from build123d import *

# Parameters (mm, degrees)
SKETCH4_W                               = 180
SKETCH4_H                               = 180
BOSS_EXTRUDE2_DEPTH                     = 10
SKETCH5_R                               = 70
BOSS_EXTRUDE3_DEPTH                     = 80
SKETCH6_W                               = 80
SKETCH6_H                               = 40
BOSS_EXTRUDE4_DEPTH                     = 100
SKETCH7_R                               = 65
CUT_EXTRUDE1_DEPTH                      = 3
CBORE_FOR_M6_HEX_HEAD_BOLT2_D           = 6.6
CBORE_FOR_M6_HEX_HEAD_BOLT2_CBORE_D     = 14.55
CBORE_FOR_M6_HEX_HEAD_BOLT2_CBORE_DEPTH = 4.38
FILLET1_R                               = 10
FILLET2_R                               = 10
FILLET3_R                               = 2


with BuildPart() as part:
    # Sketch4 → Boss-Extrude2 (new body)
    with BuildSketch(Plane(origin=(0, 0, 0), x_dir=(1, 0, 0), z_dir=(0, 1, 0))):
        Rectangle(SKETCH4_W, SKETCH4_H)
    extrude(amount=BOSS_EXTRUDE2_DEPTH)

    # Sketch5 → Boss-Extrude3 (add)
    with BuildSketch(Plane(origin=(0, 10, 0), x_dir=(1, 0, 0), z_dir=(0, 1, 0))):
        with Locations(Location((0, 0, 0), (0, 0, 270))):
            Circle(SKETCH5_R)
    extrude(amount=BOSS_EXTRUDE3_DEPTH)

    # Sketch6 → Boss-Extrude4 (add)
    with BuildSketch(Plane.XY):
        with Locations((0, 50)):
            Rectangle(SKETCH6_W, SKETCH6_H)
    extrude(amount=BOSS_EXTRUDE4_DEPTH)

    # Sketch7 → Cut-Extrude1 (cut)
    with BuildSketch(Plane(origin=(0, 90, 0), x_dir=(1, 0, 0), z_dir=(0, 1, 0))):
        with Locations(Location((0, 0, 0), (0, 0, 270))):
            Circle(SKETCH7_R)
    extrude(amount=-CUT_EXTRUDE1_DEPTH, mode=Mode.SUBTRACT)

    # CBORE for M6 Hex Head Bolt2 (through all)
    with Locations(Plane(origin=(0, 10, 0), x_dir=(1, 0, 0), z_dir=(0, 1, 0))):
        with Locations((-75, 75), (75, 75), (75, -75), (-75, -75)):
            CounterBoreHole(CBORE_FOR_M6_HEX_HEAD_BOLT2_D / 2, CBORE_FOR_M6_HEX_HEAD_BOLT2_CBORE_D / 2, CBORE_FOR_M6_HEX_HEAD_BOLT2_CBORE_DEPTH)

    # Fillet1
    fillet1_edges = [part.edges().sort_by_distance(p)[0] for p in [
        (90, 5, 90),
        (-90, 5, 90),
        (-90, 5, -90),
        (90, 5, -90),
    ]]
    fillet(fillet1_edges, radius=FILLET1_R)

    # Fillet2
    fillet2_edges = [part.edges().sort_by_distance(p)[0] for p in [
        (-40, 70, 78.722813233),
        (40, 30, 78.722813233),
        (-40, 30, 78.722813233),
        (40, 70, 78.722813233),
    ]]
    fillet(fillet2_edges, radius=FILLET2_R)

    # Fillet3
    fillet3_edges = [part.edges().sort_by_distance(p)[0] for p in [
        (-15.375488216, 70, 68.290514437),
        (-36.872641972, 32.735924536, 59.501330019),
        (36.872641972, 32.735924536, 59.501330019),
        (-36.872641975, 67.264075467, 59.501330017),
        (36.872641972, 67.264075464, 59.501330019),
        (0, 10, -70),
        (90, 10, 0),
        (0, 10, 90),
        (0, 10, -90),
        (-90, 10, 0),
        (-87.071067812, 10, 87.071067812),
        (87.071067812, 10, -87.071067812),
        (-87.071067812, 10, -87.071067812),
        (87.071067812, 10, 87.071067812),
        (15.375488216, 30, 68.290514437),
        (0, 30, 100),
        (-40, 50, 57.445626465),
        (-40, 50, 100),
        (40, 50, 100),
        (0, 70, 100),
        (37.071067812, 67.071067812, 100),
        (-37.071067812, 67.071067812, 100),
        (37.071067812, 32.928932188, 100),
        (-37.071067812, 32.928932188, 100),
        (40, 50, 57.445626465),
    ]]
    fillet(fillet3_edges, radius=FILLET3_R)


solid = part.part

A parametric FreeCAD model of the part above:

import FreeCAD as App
import Part
import Sketcher

V = App.Vector
Q = App.Units.Quantity


def edges_at(feature, points):
    """Names of the edges that pass closest to the given points."""
    edges = feature.Shape.Edges
    near = lambda p: min(range(len(edges)), key=lambda i: edges[i].distToShape(Part.Vertex(*p))[0])
    return sorted({f"Edge{near(p) + 1}" for p in points})

doc = App.newDocument("Part")
body = doc.addObject("PartDesign::Body", "Body")

# Sketch on XZ plane
sketch1 = doc.addObject("Sketcher::SketchObject", "Sketch")
body.addObject(sketch1)
sketch1.AttachmentSupport = (doc.XZ_Plane, [""])
sketch1.MapMode = "FlatFace"
sketch1.addGeometry([
    Part.LineSegment(V(-90, -90, 0), V(-90, 90, 0)),
    Part.LineSegment(V(-90, 90, 0), V(90, 90, 0)),
    Part.LineSegment(V(90, 90, 0), V(90, -90, 0)),
    Part.LineSegment(V(90, -90, 0), V(-90, -90, 0)),
], False)
sketch1.addConstraint([
    Sketcher.Constraint("Coincident", 0, 2, 1, 1),
    Sketcher.Constraint("Coincident", 1, 2, 2, 1),
    Sketcher.Constraint("Coincident", 2, 2, 3, 1),
    Sketcher.Constraint("Coincident", 3, 2, 0, 1),
    Sketcher.Constraint("Vertical", 0),
    Sketcher.Constraint("Horizontal", 1),
    Sketcher.Constraint("Vertical", 2),
    Sketcher.Constraint("Horizontal", 3),
    Sketcher.Constraint("Symmetric", 0, 2, 2, 2, -1, 1),
    Sketcher.Constraint("Equal", 3, 0),
    Sketcher.Constraint("DistanceX", 1, 1, 1, 2, Q("180 mm")),
])
pad1 = doc.addObject("PartDesign::Pad", "Pad")
body.addObject(pad1)
pad1.Profile = sketch1
pad1.Length = 10
pad1.Reversed = True

# Sketch on XZ plane
sketch2 = doc.addObject("Sketcher::SketchObject", "Sketch001")
body.addObject(sketch2)
sketch2.AttachmentSupport = (doc.XZ_Plane, [""])
sketch2.MapMode = "FlatFace"
sketch2.AttachmentOffset = App.Placement(V(0, 0, -10), App.Rotation())
sketch2.addGeometry(Part.Circle(V(0, 0, 0), V(0, 0, 1), 70), False)
sketch2.addConstraint([
    Sketcher.Constraint("Coincident", 0, 3, -1, 1),
    Sketcher.Constraint("Diameter", 0, Q("140 mm")),
])
pad2 = doc.addObject("PartDesign::Pad", "Pad001")
body.addObject(pad2)
pad2.Profile = sketch2
pad2.Length = 80
pad2.Reversed = True

# Sketch on XY plane
sketch3 = doc.addObject("Sketcher::SketchObject", "Sketch002")
body.addObject(sketch3)
sketch3.AttachmentSupport = (doc.XY_Plane, [""])
sketch3.MapMode = "FlatFace"
sketch3.addGeometry([
    Part.LineSegment(V(-40, 70, 0), V(-40, 30, 0)),
    Part.LineSegment(V(-40, 30, 0), V(40, 30, 0)),
    Part.LineSegment(V(40, 30, 0), V(40, 70, 0)),
    Part.LineSegment(V(40, 70, 0), V(-40, 70, 0)),
], False)
sketch3.addConstraint([
    Sketcher.Constraint("Coincident", 0, 2, 1, 1),
    Sketcher.Constraint("Coincident", 1, 2, 2, 1),
    Sketcher.Constraint("Coincident", 2, 2, 3, 1),
    Sketcher.Constraint("Coincident", 3, 2, 0, 1),
    Sketcher.Constraint("Vertical", 0),
    Sketcher.Constraint("Horizontal", 1),
    Sketcher.Constraint("Vertical", 2),
    Sketcher.Constraint("Horizontal", 3),
    Sketcher.Constraint("DistanceX", 1, 1, 1, 2, Q("80 mm")),
    Sketcher.Constraint("DistanceY", 0, 2, 0, 1, Q("40 mm")),
    Sketcher.Constraint("DistanceX", 0, 2, -1, 1, Q("40 mm")),
    Sketcher.Constraint("DistanceY", -1, 1, 0, 2, Q("30 mm")),
])
pad3 = doc.addObject("PartDesign::Pad", "Pad002")
body.addObject(pad3)
pad3.Profile = sketch3
pad3.Length = 100

# Sketch on XZ plane
sketch4 = doc.addObject("Sketcher::SketchObject", "Sketch003")
body.addObject(sketch4)
sketch4.AttachmentSupport = (doc.XZ_Plane, [""])
sketch4.MapMode = "FlatFace"
sketch4.AttachmentOffset = App.Placement(V(0, 0, -90), App.Rotation())
sketch4.addGeometry(Part.Circle(V(0, 0, 0), V(0, 0, 1), 65), False)
sketch4.addConstraint([
    Sketcher.Constraint("Coincident", 0, 3, -1, 1),
    Sketcher.Constraint("Diameter", 0, Q("130 mm")),
])
pocket1 = doc.addObject("PartDesign::Pocket", "Pocket")
body.addObject(pocket1)
pocket1.Profile = sketch4
pocket1.Length = 3
pocket1.Reversed = True

# Sketch on XZ plane
sketch5 = doc.addObject("Sketcher::SketchObject", "Sketch004")
body.addObject(sketch5)
sketch5.AttachmentSupport = (doc.XZ_Plane, [""])
sketch5.MapMode = "FlatFace"
sketch5.AttachmentOffset = App.Placement(V(0, 0, -10), App.Rotation())
sketch5.addGeometry([
    Part.Circle(V(-75, -75, 0), V(0, 0, 1), 3.3),
    Part.Circle(V(75, -75, 0), V(0, 0, 1), 3.3),
    Part.Circle(V(75, 75, 0), V(0, 0, 1), 3.3),
    Part.Circle(V(-75, 75, 0), V(0, 0, 1), 3.3),
], False)
sketch5.addConstraint([
    Sketcher.Constraint("Equal", 0, 1),
    Sketcher.Constraint("Equal", 1, 2),
    Sketcher.Constraint("Equal", 2, 3),
    Sketcher.Constraint("Symmetric", 0, 3, 2, 3, -1, 1),
    Sketcher.Constraint("Symmetric", 1, 3, 3, 3, -1, 1),
    Sketcher.Constraint("Symmetric", 0, 3, 1, 3, -2),
    Sketcher.Constraint("Diameter", 0, Q("6.6 mm")),
    Sketcher.Constraint("DistanceX", 0, 3, -1, 1, Q("75 mm")),
    Sketcher.Constraint("DistanceY", 0, 3, -1, 1, Q("75 mm")),
])
doc.recompute()
hole = doc.addObject("PartDesign::Hole", "Hole")
body.addObject(hole)
hole.Profile = sketch5
hole.ThreadType = "None"
hole.Diameter = 6.6
hole.DepthType = "ThroughAll"
hole.HoleCutType = "Counterbore"
hole.HoleCutDiameter = 14.55
hole.HoleCutDepth = 4.38
hole.Reversed = True
doc.recompute()

fillet = doc.addObject("PartDesign::Fillet", "Fillet")
body.addObject(fillet)
fillet.Base = (hole, edges_at(hole, [
    (90, 5, 90),
    (-90, 5, 90),
    (-90, 5, -90),
    (90, 5, -90),
]))
fillet.Radius = 10
doc.recompute()

fillet2 = doc.addObject("PartDesign::Fillet", "Fillet001")
body.addObject(fillet2)
fillet2.Base = (fillet, edges_at(fillet, [
    (-40, 70, 78.723),
    (40, 30, 78.723),
    (-40, 30, 78.723),
    (40, 70, 78.723),
]))
fillet2.Radius = 10
doc.recompute()

fillet3 = doc.addObject("PartDesign::Fillet", "Fillet002")
body.addObject(fillet3)
fillet3.Base = (fillet2, edges_at(fillet2, [
    (-15.375, 70, 68.291),
    (-36.873, 32.736, 59.501),
    (36.873, 32.736, 59.501),
    (-36.873, 67.264, 59.501),
    (36.873, 67.264, 59.501),
    (0, 10, -70),
    (90, 10, 0),
    (0, 10, 90),
    (0, 10, -90),
    (-90, 10, 0),
    (-87.071, 10, 87.071),
    (87.071, 10, -87.071),
    (-87.071, 10, -87.071),
    (87.071, 10, 87.071),
    (15.375, 30, 68.291),
    (0, 30, 100),
    (-40, 50, 57.446),
    (-40, 50, 100),
    (40, 50, 100),
    (0, 70, 100),
    (37.071, 67.071, 100),
    (-37.071, 67.071, 100),
    (37.071, 32.929, 100),
    (-37.071, 32.929, 100),
    (40, 50, 57.446),
]))
fillet3.Radius = 2

doc.recompute()
